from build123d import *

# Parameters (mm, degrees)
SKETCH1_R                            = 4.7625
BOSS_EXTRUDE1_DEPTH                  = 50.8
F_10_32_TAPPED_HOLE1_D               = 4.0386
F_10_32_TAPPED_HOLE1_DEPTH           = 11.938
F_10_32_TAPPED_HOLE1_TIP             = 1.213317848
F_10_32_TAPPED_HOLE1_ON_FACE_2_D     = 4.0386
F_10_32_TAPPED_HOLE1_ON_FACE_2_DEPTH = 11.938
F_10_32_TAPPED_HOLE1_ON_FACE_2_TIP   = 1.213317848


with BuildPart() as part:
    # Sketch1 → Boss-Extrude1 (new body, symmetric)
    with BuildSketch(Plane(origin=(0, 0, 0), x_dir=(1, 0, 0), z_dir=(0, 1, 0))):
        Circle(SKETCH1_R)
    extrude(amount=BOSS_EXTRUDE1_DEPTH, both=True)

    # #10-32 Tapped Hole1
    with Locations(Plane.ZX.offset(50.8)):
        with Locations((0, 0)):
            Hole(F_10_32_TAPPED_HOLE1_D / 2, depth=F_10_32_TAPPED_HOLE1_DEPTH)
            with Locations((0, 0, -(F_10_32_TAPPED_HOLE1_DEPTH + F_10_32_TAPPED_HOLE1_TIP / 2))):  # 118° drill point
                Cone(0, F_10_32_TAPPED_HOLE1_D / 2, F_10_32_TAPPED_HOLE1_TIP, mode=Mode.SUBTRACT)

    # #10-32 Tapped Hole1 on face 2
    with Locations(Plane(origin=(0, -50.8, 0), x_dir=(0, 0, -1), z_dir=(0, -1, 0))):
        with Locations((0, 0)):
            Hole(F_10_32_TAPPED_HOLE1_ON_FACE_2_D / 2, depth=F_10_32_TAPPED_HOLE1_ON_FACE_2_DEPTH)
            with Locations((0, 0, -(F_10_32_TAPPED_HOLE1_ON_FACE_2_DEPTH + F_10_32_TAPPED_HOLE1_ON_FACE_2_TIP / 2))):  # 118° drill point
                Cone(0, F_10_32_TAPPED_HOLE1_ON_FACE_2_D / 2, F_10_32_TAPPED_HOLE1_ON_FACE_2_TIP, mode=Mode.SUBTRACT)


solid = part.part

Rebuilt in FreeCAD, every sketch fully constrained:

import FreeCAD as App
import Part
import Sketcher
Q = App.Units.Quantity

doc = App.newDocument("Part")
body = doc.addObject("PartDesign::Body", "Body")

# Sketch on XZ plane
sketch1 = body.newObject("Sketcher::SketchObject", "Sketch")
sketch1.AttachmentSupport = (doc.getObject("XZ_Plane"), [""])
sketch1.MapMode = "FlatFace"
sketch1.addGeometry(Part.Circle(App.Vector(0, 0, 0), App.Vector(0, 0, 1), 4.8), False)
sketch1.addConstraint([
    Sketcher.Constraint("Coincident", 0, 3, -1, 1),
    Sketcher.Constraint("Diameter", 0, Q("0.375 in")),
])
pad1 = body.newObject("PartDesign::Pad", "Pad")
pad1.Profile = sketch1
pad1.Length = Q("4 in")
pad1.Midplane = True

# Sketch on XZ plane
sketch2 = body.newObject("Sketcher::SketchObject", "Sketch001")
sketch2.AttachmentSupport = (doc.getObject("XZ_Plane"), [""])
sketch2.MapMode = "FlatFace"
sketch2.AttachmentOffset = App.Placement(App.Vector(0, 0, -2 * 25.4), App.Rotation())
sketch2.addGeometry(Part.Circle(App.Vector(0, 0, 0), App.Vector(0, 0, 1), 2), False)
sketch2.addConstraint([
    Sketcher.Constraint("Coincident", 0, 3, -1, 1),
    Sketcher.Constraint("Diameter", 0, Q("0.159 in")),
])
doc.recompute()
hole = body.newObject("PartDesign::Hole", "Hole")
hole.Profile = sketch2
hole.ThreadType = "None"
hole.Diameter = Q("0.159 in")
hole.DepthType = "Dimension"
hole.Depth = Q("0.47 in")
hole.DrillPoint = "Angled"
hole.DrillPointAngle = 118
hole.Reversed = True

# Sketch on XZ plane
sketch3 = body.newObject("Sketcher::SketchObject", "Sketch002")
sketch3.AttachmentSupport = (doc.getObject("XZ_Plane"), [""])
sketch3.MapMode = "FlatFace"
sketch3.AttachmentOffset = App.Placement(App.Vector(0, 0, 2 * 25.4), App.Rotation())
sketch3.addGeometry(Part.Circle(App.Vector(0, 0, 0), App.Vector(0, 0, 1), 2), False)
sketch3.addConstraint([
    Sketcher.Constraint("Coincident", 0, 3, -1, 1),
    Sketcher.Constraint("Diameter", 0, Q("0.159 in")),
])
doc.recompute()
hole2 = body.newObject("PartDesign::Hole", "Hole001")
hole2.Profile = sketch3
hole2.ThreadType = "None"
hole2.Diameter = Q("0.159 in")
hole2.DepthType = "Dimension"
hole2.Depth = Q("0.47 in")
hole2.DrillPoint = "Angled"
hole2.DrillPointAngle = 118

doc.recompute()
